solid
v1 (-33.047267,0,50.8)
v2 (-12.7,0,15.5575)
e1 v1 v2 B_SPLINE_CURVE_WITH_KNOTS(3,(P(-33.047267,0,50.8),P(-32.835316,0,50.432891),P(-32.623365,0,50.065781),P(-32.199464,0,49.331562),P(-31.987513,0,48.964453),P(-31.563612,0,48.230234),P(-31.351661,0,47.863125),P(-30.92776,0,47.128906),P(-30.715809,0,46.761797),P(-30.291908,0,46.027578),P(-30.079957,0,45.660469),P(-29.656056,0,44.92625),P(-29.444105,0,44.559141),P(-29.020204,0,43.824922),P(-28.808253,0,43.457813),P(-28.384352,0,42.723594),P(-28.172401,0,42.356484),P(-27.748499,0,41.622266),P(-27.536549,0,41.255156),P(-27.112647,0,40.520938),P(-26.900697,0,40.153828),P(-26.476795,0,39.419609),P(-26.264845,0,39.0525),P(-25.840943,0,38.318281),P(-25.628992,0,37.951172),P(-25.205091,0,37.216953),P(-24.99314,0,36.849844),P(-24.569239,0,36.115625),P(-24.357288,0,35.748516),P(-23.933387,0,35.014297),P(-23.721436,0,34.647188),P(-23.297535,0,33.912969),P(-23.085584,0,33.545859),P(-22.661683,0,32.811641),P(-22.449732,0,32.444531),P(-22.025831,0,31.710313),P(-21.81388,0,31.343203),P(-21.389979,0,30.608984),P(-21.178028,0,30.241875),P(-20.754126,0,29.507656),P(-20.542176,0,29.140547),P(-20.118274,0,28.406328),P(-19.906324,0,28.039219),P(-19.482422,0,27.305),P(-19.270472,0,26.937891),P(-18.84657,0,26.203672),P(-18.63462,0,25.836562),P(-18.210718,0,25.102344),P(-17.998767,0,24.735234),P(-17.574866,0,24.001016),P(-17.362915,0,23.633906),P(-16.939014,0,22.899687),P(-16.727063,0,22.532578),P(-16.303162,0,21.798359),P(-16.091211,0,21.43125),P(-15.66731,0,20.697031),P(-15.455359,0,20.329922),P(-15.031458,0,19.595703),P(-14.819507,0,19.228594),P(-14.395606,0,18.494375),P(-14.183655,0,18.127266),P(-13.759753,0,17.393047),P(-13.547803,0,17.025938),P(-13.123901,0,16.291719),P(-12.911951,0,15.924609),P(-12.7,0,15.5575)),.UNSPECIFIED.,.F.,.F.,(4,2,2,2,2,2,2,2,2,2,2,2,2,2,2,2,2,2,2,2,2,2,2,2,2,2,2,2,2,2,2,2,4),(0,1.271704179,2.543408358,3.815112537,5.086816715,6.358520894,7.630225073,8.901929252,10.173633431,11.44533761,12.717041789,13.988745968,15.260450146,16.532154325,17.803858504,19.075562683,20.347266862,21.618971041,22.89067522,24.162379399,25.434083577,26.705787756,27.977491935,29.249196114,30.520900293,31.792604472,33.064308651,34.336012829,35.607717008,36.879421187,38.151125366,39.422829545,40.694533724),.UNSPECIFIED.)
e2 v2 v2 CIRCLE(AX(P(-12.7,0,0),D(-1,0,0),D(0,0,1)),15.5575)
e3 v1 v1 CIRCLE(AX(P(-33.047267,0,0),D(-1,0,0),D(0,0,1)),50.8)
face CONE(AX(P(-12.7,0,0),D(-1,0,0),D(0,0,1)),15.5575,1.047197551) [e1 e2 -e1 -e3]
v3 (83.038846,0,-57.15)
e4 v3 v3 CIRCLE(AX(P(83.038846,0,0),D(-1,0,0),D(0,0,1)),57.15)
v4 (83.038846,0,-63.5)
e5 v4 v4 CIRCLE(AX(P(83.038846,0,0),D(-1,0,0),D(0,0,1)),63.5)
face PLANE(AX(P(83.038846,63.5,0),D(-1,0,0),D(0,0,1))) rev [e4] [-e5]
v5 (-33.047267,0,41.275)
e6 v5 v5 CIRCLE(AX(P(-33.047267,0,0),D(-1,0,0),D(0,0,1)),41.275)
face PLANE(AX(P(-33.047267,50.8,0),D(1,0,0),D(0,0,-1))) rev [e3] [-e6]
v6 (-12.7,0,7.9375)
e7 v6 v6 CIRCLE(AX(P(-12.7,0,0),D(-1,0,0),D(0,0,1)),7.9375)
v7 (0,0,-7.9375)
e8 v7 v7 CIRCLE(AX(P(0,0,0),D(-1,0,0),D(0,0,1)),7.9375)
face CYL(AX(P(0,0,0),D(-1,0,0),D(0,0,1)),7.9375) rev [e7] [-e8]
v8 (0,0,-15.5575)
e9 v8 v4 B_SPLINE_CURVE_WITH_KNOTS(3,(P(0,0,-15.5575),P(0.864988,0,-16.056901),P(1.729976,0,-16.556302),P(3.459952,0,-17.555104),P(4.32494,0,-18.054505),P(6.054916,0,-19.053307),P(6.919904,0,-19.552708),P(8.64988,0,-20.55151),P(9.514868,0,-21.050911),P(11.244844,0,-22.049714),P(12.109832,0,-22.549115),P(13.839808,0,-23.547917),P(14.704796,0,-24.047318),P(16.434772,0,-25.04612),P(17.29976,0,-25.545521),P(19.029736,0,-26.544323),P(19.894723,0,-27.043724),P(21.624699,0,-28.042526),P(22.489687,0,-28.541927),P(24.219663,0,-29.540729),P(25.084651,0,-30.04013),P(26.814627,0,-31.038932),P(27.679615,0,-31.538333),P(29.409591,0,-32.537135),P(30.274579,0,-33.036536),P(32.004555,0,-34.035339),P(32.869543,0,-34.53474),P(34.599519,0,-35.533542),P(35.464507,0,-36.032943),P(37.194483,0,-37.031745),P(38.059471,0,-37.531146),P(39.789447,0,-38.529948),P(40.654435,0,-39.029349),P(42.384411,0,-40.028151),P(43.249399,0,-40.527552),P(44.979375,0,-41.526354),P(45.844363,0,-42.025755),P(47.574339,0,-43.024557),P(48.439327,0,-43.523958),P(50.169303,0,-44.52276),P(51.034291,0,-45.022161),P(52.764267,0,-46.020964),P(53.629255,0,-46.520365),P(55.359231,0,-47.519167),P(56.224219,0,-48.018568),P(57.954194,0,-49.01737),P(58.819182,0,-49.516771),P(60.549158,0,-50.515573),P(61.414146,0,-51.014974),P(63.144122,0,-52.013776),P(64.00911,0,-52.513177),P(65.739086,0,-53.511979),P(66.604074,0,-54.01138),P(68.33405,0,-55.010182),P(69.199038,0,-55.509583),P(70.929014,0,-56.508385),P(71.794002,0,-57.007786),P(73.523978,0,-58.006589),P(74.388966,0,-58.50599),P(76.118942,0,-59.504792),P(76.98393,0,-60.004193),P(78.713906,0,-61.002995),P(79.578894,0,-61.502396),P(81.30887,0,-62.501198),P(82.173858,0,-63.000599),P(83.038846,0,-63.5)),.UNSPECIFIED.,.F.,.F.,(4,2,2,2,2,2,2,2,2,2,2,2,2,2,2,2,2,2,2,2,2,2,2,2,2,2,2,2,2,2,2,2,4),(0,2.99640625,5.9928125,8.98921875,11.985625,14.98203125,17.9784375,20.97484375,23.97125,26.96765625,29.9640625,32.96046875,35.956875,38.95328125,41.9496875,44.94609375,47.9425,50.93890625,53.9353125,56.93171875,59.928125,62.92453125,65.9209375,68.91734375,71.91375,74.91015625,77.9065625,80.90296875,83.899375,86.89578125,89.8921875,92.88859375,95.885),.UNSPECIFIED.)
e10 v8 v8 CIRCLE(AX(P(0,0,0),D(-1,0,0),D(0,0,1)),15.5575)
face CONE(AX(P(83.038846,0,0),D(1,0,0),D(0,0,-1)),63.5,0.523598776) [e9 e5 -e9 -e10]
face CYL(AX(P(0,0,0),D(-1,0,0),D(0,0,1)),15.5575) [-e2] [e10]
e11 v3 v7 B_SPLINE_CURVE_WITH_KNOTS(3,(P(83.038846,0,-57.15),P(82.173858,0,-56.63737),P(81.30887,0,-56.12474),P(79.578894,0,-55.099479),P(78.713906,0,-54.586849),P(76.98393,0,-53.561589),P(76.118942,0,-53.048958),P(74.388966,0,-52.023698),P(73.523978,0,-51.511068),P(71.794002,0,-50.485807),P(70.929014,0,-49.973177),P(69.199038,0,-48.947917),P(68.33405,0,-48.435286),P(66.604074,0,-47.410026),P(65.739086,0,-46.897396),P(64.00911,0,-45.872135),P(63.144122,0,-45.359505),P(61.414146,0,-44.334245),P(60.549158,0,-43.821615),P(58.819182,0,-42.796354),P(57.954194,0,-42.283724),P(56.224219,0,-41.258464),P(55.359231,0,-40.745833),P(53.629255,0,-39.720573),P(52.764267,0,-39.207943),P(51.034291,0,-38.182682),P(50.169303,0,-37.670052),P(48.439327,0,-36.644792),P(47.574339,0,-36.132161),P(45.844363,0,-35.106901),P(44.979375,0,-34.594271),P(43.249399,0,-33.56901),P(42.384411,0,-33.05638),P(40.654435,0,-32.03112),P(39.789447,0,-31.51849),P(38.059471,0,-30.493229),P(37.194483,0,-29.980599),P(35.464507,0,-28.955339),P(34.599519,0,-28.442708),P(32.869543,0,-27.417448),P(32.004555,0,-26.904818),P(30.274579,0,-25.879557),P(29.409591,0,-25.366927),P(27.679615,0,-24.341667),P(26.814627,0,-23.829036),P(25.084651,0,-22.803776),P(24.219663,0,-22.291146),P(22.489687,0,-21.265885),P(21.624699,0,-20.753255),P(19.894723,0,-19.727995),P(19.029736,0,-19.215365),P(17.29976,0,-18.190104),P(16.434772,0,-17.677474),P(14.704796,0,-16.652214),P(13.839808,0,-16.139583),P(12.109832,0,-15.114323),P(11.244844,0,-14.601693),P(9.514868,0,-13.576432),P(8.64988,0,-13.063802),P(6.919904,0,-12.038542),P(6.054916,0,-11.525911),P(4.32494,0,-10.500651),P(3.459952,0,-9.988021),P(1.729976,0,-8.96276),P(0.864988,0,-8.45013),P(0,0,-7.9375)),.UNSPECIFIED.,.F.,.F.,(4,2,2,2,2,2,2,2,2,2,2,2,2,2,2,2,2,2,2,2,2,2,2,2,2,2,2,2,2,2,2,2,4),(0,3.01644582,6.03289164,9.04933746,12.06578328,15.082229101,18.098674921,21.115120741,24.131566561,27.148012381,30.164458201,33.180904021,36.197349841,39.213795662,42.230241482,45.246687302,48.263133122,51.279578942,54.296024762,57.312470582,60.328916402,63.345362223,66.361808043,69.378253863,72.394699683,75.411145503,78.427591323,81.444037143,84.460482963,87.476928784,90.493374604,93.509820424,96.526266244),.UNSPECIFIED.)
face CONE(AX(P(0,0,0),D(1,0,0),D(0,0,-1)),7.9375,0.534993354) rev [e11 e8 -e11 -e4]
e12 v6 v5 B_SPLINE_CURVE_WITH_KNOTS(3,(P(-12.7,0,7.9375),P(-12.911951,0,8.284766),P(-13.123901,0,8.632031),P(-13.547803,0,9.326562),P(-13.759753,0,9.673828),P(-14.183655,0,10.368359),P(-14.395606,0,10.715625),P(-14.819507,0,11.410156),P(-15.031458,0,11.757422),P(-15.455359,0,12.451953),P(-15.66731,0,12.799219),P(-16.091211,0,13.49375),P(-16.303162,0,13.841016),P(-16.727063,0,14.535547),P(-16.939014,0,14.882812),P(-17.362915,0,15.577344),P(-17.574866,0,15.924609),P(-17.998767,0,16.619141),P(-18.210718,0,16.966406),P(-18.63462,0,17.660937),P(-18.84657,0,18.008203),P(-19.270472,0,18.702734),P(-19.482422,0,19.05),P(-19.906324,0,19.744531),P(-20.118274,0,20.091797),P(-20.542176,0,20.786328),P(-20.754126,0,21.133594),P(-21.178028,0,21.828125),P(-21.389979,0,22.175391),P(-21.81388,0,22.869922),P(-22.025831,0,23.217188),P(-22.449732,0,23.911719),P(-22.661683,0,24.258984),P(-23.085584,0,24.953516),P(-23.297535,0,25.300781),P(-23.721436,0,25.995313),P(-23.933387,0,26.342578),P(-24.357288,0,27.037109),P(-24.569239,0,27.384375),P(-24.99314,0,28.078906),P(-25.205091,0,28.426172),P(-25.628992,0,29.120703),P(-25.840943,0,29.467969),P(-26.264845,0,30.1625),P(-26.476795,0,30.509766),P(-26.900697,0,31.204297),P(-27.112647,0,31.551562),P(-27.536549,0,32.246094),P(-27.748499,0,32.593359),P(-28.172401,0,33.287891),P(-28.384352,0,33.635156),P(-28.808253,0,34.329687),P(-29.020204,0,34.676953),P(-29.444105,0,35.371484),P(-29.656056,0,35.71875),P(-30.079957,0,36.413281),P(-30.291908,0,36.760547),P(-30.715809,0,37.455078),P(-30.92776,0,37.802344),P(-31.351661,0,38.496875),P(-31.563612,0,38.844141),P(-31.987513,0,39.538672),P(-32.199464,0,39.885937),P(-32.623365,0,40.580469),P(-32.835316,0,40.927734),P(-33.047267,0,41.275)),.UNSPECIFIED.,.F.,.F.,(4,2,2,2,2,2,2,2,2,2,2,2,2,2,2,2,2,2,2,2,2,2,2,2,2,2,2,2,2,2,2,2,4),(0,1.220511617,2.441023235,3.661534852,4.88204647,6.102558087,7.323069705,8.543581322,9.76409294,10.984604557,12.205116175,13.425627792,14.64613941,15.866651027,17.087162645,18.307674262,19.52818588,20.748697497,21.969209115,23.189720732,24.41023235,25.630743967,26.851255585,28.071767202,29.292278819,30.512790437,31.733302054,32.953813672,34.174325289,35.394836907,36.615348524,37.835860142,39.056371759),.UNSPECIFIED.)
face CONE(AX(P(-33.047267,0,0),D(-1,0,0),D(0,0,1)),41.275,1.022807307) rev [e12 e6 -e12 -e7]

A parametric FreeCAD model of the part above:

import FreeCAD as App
import Part
import Sketcher
from FreeCAD import Vector
Q = App.Units.Quantity


def add_polygon(sketch, points):
    """Adds a closed chain of lines whose ends are joined by coincident constraints."""
    first, n = sketch.GeometryCount, len(points)
    for a, b in zip(points, points[1:] + points[:1]):
        sketch.addGeometry(Part.LineSegment(App.Vector(*a, 0), App.Vector(*b, 0)), False)
    for i in range(n):
        sketch.addConstraint(Sketcher.Constraint("Coincident", first + i, 2, first + (i + 1) % n, 1))

doc = App.newDocument("Part")
params = doc.addObject("Spreadsheet::Sheet", "Params")
for row, (alias, value) in enumerate([
    ("sketch1_width", "0.5 in"),
    ("sketch1_height", "0.25 in"),
    ("sketch1_height2", "0.375 in"),
    ("sketch1_length", "3.775 in"),
    ("revolution_angle", "360 deg"),
], start=1):
    params.set(f"A{row}", alias)
    params.set(f"B{row}", "=" + value)
    params.setAlias(f"B{row}", alias)

body = doc.addObject("PartDesign::Body", "Body")

sketch1 = body.newObject("Sketcher::SketchObject", "Sketch")
sketch1.AttachmentSupport = (doc.getObject("XY_Plane"), [""])
sketch1.MapMode = "FlatFace"
add_polygon(sketch1, [(83, 64), (0, 16), (-13, 16), (-33, 51), (-33, 41), (-13, 8), (0, 8), (83, 57)])
sketch1.addConstraint(Sketcher.Constraint("Horizontal", 1))
sketch1.addConstraint(Sketcher.Constraint("Vertical", 3))
sketch1.addConstraint(Sketcher.Constraint("Horizontal", 5))
sketch1.addConstraint(Sketcher.Constraint("Vertical", 7))
sketch1.addConstraint(Sketcher.Constraint("PointOnObject", 0, 2, -2))
sketch1.addConstraint(Sketcher.Constraint("PointOnObject", 5, 2, -2))
sketch1.addConstraint(Sketcher.Constraint("Perpendicular", 0, 2))
sketch1.addConstraint(Sketcher.Constraint("Vertical", 1, 2, 4, 2))
sketch1.addConstraint(Sketcher.Constraint("DistanceX", 1, 2, 1, 1, Q("0.5 in")))
sketch1.addConstraint(Sketcher.Constraint("DistanceY", -1, 1, 2, 2, Q("2 in")))
sketch1.addConstraint(Sketcher.Constraint("Angle", 0, Q("-150 deg")))
sketch1.addConstraint(Sketcher.Constraint("DistanceY", 7, 1, 7, 2, Q("0.25 in")))
sketch1.addConstraint(Sketcher.Constraint("DistanceY", -1, 1, 7, 2, Q("2.5 in")))
sketch1.addConstraint(Sketcher.Constraint("DistanceY", 4, 2, 1, 2, Q("0.3 in")))
sketch1.addConstraint(Sketcher.Constraint("DistanceY", 3, 2, 3, 1, Q("0.375 in")))
sketch1.addConstraint(Sketcher.Constraint("Distance", 0, Q("3.775 in")))
sketch1.setExpression("Constraints[16]", "Params.sketch1_width")
sketch1.setExpression("Constraints[19]", "Params.sketch1_height")
sketch1.setExpression("Constraints[22]", "Params.sketch1_height2")
sketch1.setExpression("Constraints[23]", "Params.sketch1_length")
revolution = body.newObject("PartDesign::Revolution", "Revolution")
revolution.Profile = sketch1
revolution.ReferenceAxis = (sketch1, ["H_Axis"])
revolution.setExpression("Angle", "Params.revolution_angle")

doc.recompute()
